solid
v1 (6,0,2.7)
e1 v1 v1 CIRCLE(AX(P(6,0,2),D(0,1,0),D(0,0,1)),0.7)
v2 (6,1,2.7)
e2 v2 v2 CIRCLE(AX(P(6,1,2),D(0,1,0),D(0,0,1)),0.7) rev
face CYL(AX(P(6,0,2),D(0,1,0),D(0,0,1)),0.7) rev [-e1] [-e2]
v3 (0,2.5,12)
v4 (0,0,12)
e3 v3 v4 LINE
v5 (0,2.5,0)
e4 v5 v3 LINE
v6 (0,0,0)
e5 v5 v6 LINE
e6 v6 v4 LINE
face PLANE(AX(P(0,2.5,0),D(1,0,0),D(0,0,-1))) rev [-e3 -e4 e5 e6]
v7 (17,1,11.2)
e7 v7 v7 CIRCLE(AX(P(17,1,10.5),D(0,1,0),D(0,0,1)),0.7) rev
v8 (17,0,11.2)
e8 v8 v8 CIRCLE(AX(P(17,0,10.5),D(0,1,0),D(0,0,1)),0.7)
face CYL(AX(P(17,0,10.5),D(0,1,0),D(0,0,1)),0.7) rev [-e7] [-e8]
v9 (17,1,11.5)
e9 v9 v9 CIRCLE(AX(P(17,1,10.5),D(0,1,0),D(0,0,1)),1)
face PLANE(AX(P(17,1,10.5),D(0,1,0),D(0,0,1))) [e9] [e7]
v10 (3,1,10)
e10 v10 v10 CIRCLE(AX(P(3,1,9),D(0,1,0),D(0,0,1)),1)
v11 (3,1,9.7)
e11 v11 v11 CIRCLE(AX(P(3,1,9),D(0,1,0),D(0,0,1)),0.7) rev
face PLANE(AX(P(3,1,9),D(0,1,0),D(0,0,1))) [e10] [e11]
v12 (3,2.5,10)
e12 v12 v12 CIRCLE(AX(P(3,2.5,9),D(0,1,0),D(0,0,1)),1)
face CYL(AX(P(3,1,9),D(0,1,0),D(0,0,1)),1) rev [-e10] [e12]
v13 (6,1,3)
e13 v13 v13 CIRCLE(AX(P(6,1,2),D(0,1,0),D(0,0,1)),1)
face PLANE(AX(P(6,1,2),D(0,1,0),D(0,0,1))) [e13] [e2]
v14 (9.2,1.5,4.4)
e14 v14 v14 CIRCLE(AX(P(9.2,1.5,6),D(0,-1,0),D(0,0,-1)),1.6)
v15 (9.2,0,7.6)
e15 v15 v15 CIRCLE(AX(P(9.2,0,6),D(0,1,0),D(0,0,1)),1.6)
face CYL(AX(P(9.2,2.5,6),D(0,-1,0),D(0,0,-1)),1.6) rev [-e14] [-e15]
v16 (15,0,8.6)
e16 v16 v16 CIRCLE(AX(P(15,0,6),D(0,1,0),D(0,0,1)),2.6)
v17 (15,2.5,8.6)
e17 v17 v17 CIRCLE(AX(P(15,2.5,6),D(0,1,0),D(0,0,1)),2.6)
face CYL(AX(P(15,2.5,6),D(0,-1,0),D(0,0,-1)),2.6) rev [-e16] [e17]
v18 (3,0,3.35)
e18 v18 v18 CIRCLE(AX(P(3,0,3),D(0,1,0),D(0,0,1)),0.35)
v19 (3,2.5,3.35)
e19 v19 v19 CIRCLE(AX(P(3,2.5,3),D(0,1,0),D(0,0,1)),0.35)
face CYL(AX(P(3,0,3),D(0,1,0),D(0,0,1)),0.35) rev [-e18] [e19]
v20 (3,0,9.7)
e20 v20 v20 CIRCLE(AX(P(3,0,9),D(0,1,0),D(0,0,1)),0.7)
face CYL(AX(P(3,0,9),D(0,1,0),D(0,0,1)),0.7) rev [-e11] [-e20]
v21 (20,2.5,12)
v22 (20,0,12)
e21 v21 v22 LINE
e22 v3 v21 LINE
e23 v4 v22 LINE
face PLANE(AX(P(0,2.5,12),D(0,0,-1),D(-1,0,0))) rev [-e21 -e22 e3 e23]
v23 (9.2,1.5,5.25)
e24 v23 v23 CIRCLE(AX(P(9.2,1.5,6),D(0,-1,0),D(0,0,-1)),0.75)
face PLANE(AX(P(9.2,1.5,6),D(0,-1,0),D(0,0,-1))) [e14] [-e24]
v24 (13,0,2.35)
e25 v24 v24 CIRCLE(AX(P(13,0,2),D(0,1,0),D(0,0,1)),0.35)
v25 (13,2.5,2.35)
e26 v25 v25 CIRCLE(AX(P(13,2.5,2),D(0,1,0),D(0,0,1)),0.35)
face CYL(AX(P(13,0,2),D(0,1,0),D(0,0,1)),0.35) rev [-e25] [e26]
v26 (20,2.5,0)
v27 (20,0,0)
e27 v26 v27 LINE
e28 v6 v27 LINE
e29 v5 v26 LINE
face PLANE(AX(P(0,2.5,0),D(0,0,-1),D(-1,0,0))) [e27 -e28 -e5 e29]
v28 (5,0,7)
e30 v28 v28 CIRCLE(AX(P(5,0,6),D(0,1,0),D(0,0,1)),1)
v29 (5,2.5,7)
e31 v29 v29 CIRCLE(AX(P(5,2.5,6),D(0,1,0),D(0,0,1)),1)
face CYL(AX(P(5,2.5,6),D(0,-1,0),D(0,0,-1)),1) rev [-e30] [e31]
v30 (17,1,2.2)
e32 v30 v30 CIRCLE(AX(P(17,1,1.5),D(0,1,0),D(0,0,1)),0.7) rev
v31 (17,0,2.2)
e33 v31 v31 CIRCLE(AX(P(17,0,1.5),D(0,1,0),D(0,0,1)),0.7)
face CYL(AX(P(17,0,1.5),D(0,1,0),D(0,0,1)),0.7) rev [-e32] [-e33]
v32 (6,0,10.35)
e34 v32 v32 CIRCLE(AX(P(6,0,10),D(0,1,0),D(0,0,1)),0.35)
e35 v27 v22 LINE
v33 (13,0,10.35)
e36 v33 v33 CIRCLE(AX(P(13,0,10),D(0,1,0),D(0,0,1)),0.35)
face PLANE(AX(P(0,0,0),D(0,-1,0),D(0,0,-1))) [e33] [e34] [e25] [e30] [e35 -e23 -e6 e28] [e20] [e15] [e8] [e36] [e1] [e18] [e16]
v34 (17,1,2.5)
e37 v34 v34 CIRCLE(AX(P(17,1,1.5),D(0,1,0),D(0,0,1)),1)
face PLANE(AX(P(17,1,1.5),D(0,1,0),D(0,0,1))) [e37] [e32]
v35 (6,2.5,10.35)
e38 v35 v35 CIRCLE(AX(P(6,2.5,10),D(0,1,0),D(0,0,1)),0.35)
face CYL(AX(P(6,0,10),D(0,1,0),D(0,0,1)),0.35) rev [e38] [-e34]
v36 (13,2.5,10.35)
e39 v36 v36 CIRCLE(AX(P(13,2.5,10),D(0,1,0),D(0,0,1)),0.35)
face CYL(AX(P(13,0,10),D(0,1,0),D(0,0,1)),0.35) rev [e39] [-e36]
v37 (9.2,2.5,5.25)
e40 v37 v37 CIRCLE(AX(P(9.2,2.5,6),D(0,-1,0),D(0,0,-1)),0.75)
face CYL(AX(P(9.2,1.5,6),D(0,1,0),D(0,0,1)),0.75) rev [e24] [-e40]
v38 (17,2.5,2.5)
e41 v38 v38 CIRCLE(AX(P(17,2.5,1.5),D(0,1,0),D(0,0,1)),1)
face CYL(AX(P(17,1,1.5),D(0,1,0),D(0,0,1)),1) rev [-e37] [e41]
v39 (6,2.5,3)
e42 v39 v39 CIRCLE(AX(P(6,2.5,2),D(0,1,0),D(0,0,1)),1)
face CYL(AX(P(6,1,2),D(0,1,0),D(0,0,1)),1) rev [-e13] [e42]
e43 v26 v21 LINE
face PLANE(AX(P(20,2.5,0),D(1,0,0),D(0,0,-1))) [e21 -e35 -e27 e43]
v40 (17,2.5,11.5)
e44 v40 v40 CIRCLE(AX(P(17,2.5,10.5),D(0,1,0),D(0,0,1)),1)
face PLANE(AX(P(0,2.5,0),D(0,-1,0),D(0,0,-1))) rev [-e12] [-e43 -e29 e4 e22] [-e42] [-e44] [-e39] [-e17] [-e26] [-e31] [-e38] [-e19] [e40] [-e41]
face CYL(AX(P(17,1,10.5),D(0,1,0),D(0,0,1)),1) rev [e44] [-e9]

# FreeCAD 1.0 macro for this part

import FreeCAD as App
import Part
import Sketcher
Q = App.Units.Quantity


def add_polygon(sketch, points):
    """Adds a closed chain of lines whose ends are joined by coincident constraints."""
    first, n = sketch.GeometryCount, len(points)
    for a, b in zip(points, points[1:] + points[:1]):
        sketch.addGeometry(Part.LineSegment(App.Vector(*a, 0), App.Vector(*b, 0)), False)
    for i in range(n):
        sketch.addConstraint(Sketcher.Constraint("Coincident", first + i, 2, first + (i + 1) % n, 1))

doc = App.newDocument("Part")
params = doc.addObject("Spreadsheet::Sheet", "Params")
for row, (alias, value) in enumerate([
    ("sketch1_diameter", "2 mm"),
    ("sketch1_diameter2", "3.2 mm"),
    ("sketch1_diameter3", "5.2 mm"),
    ("sketch1_width", "20 mm"),
    ("sketch1_height", "12 mm"),
    ("pad1_length", "2.5 mm"),
    ("sketch2_diameter", "3.2 mm"),
    ("sketch2_diameter2", "1.5 mm"),
    ("pad2_length", "1 mm"),
    ("sketch3_diameter", "1.4 mm"),
    ("sketch3_diameter2", "0.7 mm"),
    ("sketch4_diameter", "2 mm"),
    ("pocket2_length", "1.5 mm"),
], start=1):
    params.set(f"A{row}", alias)
    params.set(f"B{row}", "=" + value)
    params.setAlias(f"B{row}", alias)

body = doc.addObject("PartDesign::Body", "Body")

sketch1 = body.newObject("Sketcher::SketchObject", "Sketch")
sketch1.AttachmentSupport = (doc.getObject("XZ_Plane"), [""])
sketch1.MapMode = "FlatFace"
add_polygon(sketch1, [(0, 0), (0, 12), (20, 12), (20, 0)])
sketch1.addGeometry(Part.Circle(App.Vector(5, 6, 0), App.Vector(0, 0, 1), 1), False)
sketch1.addGeometry(Part.Circle(App.Vector(9.2, 6, 0), App.Vector(0, 0, 1), 1.6), False)
sketch1.addGeometry(Part.Circle(App.Vector(15, 6, 0), App.Vector(0, 0, 1), 2.6), False)
sketch1.addConstraint([
    Sketcher.Constraint("Vertical", 0),
    Sketcher.Constraint("Horizontal", 1),
    Sketcher.Constraint("Vertical", 2),
    Sketcher.Constraint("Horizontal", 3),
    Sketcher.Constraint("Coincident", 3, 2, -1, 1),
    Sketcher.Constraint("Horizontal", 4, 3, 5, 3),
    Sketcher.Constraint("Horizontal", 5, 3, 6, 3),
    Sketcher.Constraint("Diameter", 4, Q("2 mm")),
    Sketcher.Constraint("Diameter", 5, Q("3.2 mm")),
    Sketcher.Constraint("Diameter", 6, Q("5.2 mm")),
    Sketcher.Constraint("DistanceX", 1, 1, 1, 2, Q("20 mm")),
    Sketcher.Constraint("DistanceY", 0, 1, 0, 2, Q("12 mm")),
    Sketcher.Constraint("DistanceX", -1, 1, 4, 3, Q("5 mm")),
    Sketcher.Constraint("DistanceY", -1, 1, 4, 3, Q("6 mm")),
    Sketcher.Constraint("DistanceX", -1, 1, 6, 3, Q("15 mm")),
    Sketcher.Constraint("DistanceX", -1, 1, 5, 3, Q("9.2 mm")),
])
sketch1.setExpression("Constraints[11]", "Params.sketch1_diameter")
sketch1.setExpression("Constraints[12]", "Params.sketch1_diameter2")
sketch1.setExpression("Constraints[13]", "Params.sketch1_diameter3")
sketch1.setExpression("Constraints[14]", "Params.sketch1_width")
sketch1.setExpression("Constraints[15]", "Params.sketch1_height")
pad1 = body.newObject("PartDesign::Pad", "Pad")
pad1.Profile = sketch1
pad1.setExpression("Length", "Params.pad1_length")
pad1.Reversed = True

sketch2 = body.newObject("Sketcher::SketchObject", "Sketch001")
sketch2.AttachmentSupport = (doc.getObject("XZ_Plane"), [""])
sketch2.MapMode = "FlatFace"
sketch2.AttachmentOffset = App.Placement(App.Vector(0, 0, -1.5), App.Rotation())
sketch2.addGeometry([
    Part.Circle(App.Vector(9.2, 6, 0), App.Vector(0, 0, 1), 1.6),
    Part.Circle(App.Vector(9.2, 6, 0), App.Vector(0, 0, 1), 0.8),
], False)
sketch2.addConstraint([
    Sketcher.Constraint("Coincident", 1, 3, 0, 3),
    Sketcher.Constraint("Diameter", 0, Q("3.2 mm")),
    Sketcher.Constraint("Diameter", 1, Q("1.5 mm")),
    Sketcher.Constraint("DistanceY", -1, 1, 0, 3, Q("6 mm")),
    Sketcher.Constraint("DistanceX", -1, 1, 0, 3, Q("9.2 mm")),
])
sketch2.setExpression("Constraints[1]", "Params.sketch2_diameter")
sketch2.setExpression("Constraints[2]", "Params.sketch2_diameter2")
pad2 = body.newObject("PartDesign::Pad", "Pad001")
pad2.Profile = sketch2
pad2.setExpression("Length", "Params.pad2_length")
pad2.Reversed = True

sketch3 = body.newObject("Sketcher::SketchObject", "Sketch002")
sketch3.AttachmentSupport = (doc.getObject("XZ_Plane"), [""])
sketch3.MapMode = "FlatFace"
sketch3.AttachmentOffset = App.Placement(App.Vector(0, 0, -2.5), App.Rotation())
sketch3.addGeometry([
    Part.Circle(App.Vector(3, 9, 0), App.Vector(0, 0, 1), 0.7),
    Part.Circle(App.Vector(6, 2, 0), App.Vector(0, 0, 1), 0.7),
    Part.Circle(App.Vector(17, 1.5, 0), App.Vector(0, 0, 1), 0.7),
    Part.Circle(App.Vector(17, 10.5, 0), App.Vector(0, 0, 1), 0.7),
    Part.Circle(App.Vector(3, 3, 0), App.Vector(0, 0, 1), 0.35),
    Part.Circle(App.Vector(6, 10, 0), App.Vector(0, 0, 1), 0.35),
    Part.Circle(App.Vector(13, 10, 0), App.Vector(0, 0, 1), 0.35),
    Part.Circle(App.Vector(13, 2, 0), App.Vector(0, 0, 1), 0.35),
], False)
sketch3.addConstraint([
    Sketcher.Constraint("Equal", 0, 1),
    Sketcher.Constraint("Equal", 1, 2),
    Sketcher.Constraint("Equal", 2, 3),
    Sketcher.Constraint("Equal", 4, 5),
    Sketcher.Constraint("Equal", 5, 6),
    Sketcher.Constraint("Equal", 6, 7),
    Sketcher.Constraint("Horizontal", 5, 3, 6, 3),
    Sketcher.Constraint("Horizontal", 1, 3, 7, 3),
    Sketcher.Constraint("Vertical", 2, 3, 3, 3),
    Sketcher.Constraint("Vertical", 0, 3, 4, 3),
    Sketcher.Constraint("Vertical", 1, 3, 5, 3),
    Sketcher.Constraint("Vertical", 6, 3, 7, 3),
    Sketcher.Constraint("Diameter", 0, Q("1.4 mm")),
    Sketcher.Constraint("Diameter", 4, Q("0.7 mm")),
    Sketcher.Constraint("DistanceX", -1, 1, 0, 3, Q("3 mm")),
    Sketcher.Constraint("DistanceY", -1, 1, 0, 3, Q("9 mm")),
    Sketcher.Constraint("DistanceX", -1, 1, 1, 3, Q("6 mm")),
    Sketcher.Constraint("DistanceY", -1, 1, 1, 3, Q("2 mm")),
    Sketcher.Constraint("DistanceX", -1, 1, 2, 3, Q("17 mm")),
    Sketcher.Constraint("DistanceY", -1, 1, 4, 3, Q("3 mm")),
    Sketcher.Constraint("DistanceY", -1, 1, 5, 3, Q("10 mm")),
    Sketcher.Constraint("DistanceX", -1, 1, 6, 3, Q("13 mm")),
    Sketcher.Constraint("DistanceY", 2, 3, 3, 3, Q("9 mm")),
    Sketcher.Constraint("DistanceY", -1, 1, 2, 3, Q("1.5 mm")),
])
sketch3.setExpression("Constraints[12]", "Params.sketch3_diameter")
sketch3.setExpression("Constraints[13]", "Params.sketch3_diameter2")
pocket1 = body.newObject("PartDesign::Pocket", "Pocket")
pocket1.Profile = sketch3
pocket1.Type = "ThroughAll"
pocket1.Reversed = True

sketch4 = body.newObject("Sketcher::SketchObject", "Sketch003")
sketch4.AttachmentSupport = (doc.getObject("XZ_Plane"), [""])
sketch4.MapMode = "FlatFace"
sketch4.AttachmentOffset = App.Placement(App.Vector(0, 0, -2.5), App.Rotation())
sketch4.addGeometry([
    Part.Circle(App.Vector(6, 2, 0), App.Vector(0, 0, 1), 1),
    Part.Circle(App.Vector(3, 9, 0), App.Vector(0, 0, 1), 1),
    Part.Circle(App.Vector(17, 1.5, 0), App.Vector(0, 0, 1), 1),
    Part.Circle(App.Vector(17, 10.5, 0), App.Vector(0, 0, 1), 1),
], False)
sketch4.addConstraint([
    Sketcher.Constraint("Equal", 0, 1),
    Sketcher.Constraint("Equal", 1, 2),
    Sketcher.Constraint("Equal", 2, 3),
    Sketcher.Constraint("Vertical", 2, 3, 3, 3),
    Sketcher.Constraint("Diameter", 0, Q("2 mm")),
    Sketcher.Constraint("DistanceX", -1, 1, 0, 3, Q("6 mm")),
    Sketcher.Constraint("DistanceY", -1, 1, 0, 3, Q("2 mm")),
    Sketcher.Constraint("DistanceX", -1, 1, 1, 3, Q("3 mm")),
    Sketcher.Constraint("DistanceY", -1, 1, 1, 3, Q("9 mm")),
    Sketcher.Constraint("DistanceX", -1, 1, 2, 3, Q("17 mm")),
    Sketcher.Constraint("DistanceY", 2, 3, 3, 3, Q("9 mm")),
    Sketcher.Constraint("DistanceY", -1, 1, 2, 3, Q("1.5 mm")),
])
sketch4.setExpression("Constraints[4]", "Params.sketch4_diameter")
pocket2 = body.newObject("PartDesign::Pocket", "Pocket001")
pocket2.Profile = sketch4
pocket2.setExpression("Length", "Params.pocket2_length")
pocket2.Reversed = True

doc.recompute()
